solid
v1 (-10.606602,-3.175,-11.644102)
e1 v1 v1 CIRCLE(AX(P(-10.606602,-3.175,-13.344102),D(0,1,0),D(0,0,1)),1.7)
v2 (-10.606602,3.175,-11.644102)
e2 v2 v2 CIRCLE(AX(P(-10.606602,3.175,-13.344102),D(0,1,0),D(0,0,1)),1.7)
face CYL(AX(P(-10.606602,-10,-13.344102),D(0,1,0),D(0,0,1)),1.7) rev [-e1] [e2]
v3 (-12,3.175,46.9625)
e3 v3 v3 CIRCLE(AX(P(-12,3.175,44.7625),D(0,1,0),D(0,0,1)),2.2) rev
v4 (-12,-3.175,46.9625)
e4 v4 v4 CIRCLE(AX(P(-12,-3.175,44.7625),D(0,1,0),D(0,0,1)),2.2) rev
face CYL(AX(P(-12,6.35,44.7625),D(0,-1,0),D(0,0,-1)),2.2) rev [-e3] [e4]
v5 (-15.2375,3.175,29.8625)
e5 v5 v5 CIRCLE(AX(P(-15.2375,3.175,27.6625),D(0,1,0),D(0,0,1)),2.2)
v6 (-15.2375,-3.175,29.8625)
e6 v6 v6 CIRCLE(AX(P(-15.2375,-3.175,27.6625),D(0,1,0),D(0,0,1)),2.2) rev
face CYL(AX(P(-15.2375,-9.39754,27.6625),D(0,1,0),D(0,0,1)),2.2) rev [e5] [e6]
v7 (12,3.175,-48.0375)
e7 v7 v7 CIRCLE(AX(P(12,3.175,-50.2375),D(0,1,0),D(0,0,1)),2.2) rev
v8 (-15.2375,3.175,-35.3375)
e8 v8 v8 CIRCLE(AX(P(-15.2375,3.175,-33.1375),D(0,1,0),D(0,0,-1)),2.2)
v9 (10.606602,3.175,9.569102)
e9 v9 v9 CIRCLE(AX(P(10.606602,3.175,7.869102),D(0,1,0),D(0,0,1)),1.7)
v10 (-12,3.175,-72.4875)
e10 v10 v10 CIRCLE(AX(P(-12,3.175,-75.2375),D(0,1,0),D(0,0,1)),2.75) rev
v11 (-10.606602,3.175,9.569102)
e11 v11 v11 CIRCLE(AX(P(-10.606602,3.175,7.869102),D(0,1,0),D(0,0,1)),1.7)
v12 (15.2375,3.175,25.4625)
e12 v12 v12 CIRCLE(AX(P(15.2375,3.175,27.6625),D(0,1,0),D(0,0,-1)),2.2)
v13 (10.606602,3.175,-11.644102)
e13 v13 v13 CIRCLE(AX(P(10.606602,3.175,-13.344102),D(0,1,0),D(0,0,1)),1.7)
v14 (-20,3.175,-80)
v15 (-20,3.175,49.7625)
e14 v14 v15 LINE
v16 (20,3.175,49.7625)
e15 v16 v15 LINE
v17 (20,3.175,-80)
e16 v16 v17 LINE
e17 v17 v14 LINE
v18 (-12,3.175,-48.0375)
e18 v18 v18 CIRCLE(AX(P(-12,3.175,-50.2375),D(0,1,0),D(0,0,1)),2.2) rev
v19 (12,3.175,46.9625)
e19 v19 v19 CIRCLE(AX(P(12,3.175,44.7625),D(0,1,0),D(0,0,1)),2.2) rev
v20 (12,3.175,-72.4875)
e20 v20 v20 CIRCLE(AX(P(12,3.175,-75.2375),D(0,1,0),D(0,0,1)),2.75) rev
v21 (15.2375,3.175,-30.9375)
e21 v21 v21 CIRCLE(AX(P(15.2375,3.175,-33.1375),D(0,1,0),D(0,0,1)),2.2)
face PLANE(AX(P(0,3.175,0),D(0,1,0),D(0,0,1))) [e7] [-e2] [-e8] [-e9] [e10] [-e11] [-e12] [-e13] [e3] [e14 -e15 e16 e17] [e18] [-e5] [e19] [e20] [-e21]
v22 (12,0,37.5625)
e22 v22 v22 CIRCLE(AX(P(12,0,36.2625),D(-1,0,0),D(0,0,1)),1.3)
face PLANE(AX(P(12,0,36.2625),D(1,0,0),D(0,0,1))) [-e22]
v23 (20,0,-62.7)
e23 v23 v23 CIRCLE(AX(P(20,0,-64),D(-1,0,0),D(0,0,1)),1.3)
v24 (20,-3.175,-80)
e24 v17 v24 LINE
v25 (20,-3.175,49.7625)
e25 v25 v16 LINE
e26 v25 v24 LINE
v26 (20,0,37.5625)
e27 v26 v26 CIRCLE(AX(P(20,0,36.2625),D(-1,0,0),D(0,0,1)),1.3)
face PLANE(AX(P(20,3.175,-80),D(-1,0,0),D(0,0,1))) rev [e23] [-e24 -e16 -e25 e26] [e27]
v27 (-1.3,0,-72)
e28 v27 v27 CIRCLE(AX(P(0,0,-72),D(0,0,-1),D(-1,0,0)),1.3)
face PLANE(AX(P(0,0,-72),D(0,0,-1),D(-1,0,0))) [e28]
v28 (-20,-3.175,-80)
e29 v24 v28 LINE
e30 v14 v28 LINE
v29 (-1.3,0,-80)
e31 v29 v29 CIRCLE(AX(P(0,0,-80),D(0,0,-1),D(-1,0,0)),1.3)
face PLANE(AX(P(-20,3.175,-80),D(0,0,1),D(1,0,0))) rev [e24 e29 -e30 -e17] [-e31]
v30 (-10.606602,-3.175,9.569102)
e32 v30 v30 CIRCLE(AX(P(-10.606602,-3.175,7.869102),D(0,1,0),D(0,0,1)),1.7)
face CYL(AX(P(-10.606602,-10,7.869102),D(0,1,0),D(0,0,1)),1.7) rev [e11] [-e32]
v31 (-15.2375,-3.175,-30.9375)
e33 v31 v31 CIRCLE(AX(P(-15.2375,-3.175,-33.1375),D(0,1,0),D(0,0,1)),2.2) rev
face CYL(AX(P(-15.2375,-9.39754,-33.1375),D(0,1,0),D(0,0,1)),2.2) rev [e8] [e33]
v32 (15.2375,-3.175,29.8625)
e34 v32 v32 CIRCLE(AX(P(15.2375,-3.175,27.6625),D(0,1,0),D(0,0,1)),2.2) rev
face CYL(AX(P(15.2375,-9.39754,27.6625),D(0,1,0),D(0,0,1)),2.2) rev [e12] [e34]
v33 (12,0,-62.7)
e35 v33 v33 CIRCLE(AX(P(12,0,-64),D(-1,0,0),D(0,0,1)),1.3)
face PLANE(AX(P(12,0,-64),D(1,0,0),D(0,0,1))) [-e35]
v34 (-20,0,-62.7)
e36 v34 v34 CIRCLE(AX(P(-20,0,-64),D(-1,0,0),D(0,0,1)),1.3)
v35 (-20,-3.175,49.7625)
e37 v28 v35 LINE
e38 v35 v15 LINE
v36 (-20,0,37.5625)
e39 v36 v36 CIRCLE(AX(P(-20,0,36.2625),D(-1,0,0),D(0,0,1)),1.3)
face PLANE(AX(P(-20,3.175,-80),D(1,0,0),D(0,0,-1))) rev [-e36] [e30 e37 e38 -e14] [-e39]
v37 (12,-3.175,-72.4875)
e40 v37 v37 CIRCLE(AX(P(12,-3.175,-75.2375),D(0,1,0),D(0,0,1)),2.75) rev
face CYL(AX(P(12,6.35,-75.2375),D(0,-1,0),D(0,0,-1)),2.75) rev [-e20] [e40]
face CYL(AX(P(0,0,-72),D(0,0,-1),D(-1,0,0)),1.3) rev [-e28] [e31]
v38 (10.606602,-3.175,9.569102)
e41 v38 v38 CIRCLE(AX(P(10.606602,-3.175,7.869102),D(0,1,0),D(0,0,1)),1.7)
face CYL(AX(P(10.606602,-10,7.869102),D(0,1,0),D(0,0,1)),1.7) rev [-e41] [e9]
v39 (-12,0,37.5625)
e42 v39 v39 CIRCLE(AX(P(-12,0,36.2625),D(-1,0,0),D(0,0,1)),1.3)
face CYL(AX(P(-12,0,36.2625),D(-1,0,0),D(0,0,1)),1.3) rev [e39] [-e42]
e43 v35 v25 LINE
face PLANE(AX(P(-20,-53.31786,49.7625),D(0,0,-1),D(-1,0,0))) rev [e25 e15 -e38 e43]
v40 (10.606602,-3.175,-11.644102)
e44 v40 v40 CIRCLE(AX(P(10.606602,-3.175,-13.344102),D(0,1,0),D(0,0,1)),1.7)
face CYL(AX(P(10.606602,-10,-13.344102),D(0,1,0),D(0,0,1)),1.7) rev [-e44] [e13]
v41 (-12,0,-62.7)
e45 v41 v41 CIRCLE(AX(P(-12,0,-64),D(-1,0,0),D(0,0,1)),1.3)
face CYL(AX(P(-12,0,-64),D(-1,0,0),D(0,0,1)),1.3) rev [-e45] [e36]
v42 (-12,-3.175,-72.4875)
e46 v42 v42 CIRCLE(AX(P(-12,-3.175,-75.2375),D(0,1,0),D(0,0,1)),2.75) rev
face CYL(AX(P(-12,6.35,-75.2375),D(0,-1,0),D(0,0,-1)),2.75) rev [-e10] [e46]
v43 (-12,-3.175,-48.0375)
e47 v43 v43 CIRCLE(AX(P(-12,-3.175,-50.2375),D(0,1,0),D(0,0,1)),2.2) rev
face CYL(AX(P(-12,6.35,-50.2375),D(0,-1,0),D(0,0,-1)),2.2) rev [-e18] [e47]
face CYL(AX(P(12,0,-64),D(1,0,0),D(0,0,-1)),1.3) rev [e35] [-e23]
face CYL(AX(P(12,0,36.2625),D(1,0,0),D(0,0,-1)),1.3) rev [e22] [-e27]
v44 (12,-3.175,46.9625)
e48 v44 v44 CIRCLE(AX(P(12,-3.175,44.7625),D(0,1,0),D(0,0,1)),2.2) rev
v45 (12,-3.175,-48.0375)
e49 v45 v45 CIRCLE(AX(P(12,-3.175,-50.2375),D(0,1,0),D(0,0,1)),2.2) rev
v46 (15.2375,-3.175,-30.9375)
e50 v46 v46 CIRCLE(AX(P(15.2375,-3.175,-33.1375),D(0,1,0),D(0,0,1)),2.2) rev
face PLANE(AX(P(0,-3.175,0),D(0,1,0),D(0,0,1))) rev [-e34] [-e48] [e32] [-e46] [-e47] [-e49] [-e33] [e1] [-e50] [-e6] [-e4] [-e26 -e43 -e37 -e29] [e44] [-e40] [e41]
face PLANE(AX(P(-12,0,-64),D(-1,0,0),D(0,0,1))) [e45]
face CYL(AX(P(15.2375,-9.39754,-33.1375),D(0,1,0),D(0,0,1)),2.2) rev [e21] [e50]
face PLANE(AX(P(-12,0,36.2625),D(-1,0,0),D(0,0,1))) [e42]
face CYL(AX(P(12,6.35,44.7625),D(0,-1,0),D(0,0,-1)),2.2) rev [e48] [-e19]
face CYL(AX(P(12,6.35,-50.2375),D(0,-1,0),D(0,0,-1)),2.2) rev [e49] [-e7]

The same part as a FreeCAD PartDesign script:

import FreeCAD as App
import Part
import Sketcher

V = App.Vector

doc = App.newDocument("Part")
params = doc.addObject("Spreadsheet::Sheet", "Params")
for row, (alias, value) in enumerate([
    ("sketch1_width", "40 mm"),
    ("sketch1_height", "160 mm"),
    ("pad1_length", "6.35 mm"),
    ("sketch2_diameter", "5.5 mm"),
    ("sketch2_diameter2", "4.4 mm"),
    ("sketch3_diameter", "2.6 mm"),
    ("pocket2_length", "8 mm"),
    ("sketch4_diameter", "4.4 mm"),
    ("pocket3_length", "6.35 mm"),
    ("sketch5_diameter", "3.4 mm"),
    ("sketch6_width", "40 mm"),
    ("pocket5_length", "6.35 mm"),
    ("sketch7_diameter", "2.6 mm"),
    ("pocket6_length", "8 mm"),
], start=1):
    params.set(f"A{row}", alias)
    params.set(f"B{row}", "=" + value)
    params.setAlias(f"B{row}", alias)

body = doc.addObject("PartDesign::Body", "Body")

# Sketch on XZ plane
sketch1 = body.newObject("Sketcher::SketchObject", "Sketch")
sketch1.AttachmentSupport = (doc.getObject("XZ_Plane"), [""])
sketch1.MapMode = "FlatFace"
sketch1.addGeometry([
    Part.LineSegment(V(-20, -80, 0), V(-20, 80, 0)),
    Part.LineSegment(V(-20, 80, 0), V(20, 80, 0)),
    Part.LineSegment(V(20, 80, 0), V(20, -80, 0)),
    Part.LineSegment(V(20, -80, 0), V(-20, -80, 0)),
], False)
sketch1.addConstraint([
    Sketcher.Constraint("Coincident", 0, 2, 1, 1),
    Sketcher.Constraint("Coincident", 1, 2, 2, 1),
    Sketcher.Constraint("Coincident", 2, 2, 3, 1),
    Sketcher.Constraint("Coincident", 3, 2, 0, 1),
    Sketcher.Constraint("Vertical", 0),
    Sketcher.Constraint("Horizontal", 1),
    Sketcher.Constraint("Vertical", 2),
    Sketcher.Constraint("Horizontal", 3),
    Sketcher.Constraint("Symmetric", 0, 2, 2, 2, -1, 1),
    Sketcher.Constraint("DistanceX", 1, 1, 1, 2, 40.0),
    Sketcher.Constraint("DistanceY", 0, 1, 0, 2, 160.0),
])
sketch1.setExpression("Constraints[9]", "Params.sketch1_width")
sketch1.setExpression("Constraints[10]", "Params.sketch1_height")
pad1 = body.newObject("PartDesign::Pad", "Pad")
pad1.Profile = sketch1
pad1.setExpression("Length", "Params.pad1_length")
pad1.Midplane = True

# Sketch on XZ plane
sketch2 = body.newObject("Sketcher::SketchObject", "Sketch001")
sketch2.AttachmentSupport = (doc.getObject("XZ_Plane"), [""])
sketch2.MapMode = "FlatFace"
sketch2.addGeometry([
    Part.Circle(V(12, -75.2375, 0), V(0, 0, 1), 2.75),  # 0
    Part.Circle(V(12, -50.2375, 0), V(0, 0, 1), 2.2),  # 1
    Part.Circle(V(-12, -50.2375, 0), V(0, 0, 1), 2.2),  # 2
    Part.Circle(V(-12, -75.2375, 0), V(0, 0, 1), 2.75),  # 3
    Part.Circle(V(-12, 44.7625, 0), V(0, 0, 1), 2.2),  # 4
    Part.Circle(V(12, 44.7625, 0), V(0, 0, 1), 2.2),  # 5
], False)
sketch2.addConstraint([
    Sketcher.Constraint("Equal", 1, 2),
    Sketcher.Constraint("Equal", 0, 3),
    Sketcher.Constraint("Equal", 2, 4),
    Sketcher.Constraint("Equal", 4, 5),
    Sketcher.Constraint("Symmetric", 1, 3, 2, 3, -2),
    Sketcher.Constraint("Symmetric", 0, 3, 3, 3, -2),
    Sketcher.Constraint("Symmetric", 4, 3, 5, 3, -2),
    Sketcher.Constraint("Vertical", 0, 3, 1, 3),
    Sketcher.Constraint("Vertical", 3, 3, 4, 3),
    Sketcher.Constraint("Diameter", 0, 5.5),
    Sketcher.Constraint("Diameter", 1, 4.4),
    Sketcher.Constraint("DistanceX", -1, 1, 0, 3, 12.0),
    Sketcher.Constraint("DistanceY", 0, 3, 1, 3, 25.0),
    Sketcher.Constraint("DistanceY", 2, 3, 4, 3, 95.0),
    Sketcher.Constraint("DistanceY", 0, 3, -1, 1, 75.2375),
])
sketch2.setExpression("Constraints[9]", "Params.sketch2_diameter")
sketch2.setExpression("Constraints[10]", "Params.sketch2_diameter2")
pocket1 = body.newObject("PartDesign::Pocket", "Pocket")
pocket1.Profile = sketch2
pocket1.Type = "ThroughAll"
pocket1.Midplane = True

# Sketch on XY plane
sketch3 = body.newObject("Sketcher::SketchObject", "Sketch002")
sketch3.AttachmentSupport = (doc.getObject("XY_Plane"), [""])
sketch3.MapMode = "FlatFace"
sketch3.AttachmentOffset = App.Placement(V(0, 0, -80), App.Rotation())
sketch3.addGeometry(Part.Circle(V(0, 0, 0), V(0, 0, 1), 1.3), False)
sketch3.addConstraint([
    Sketcher.Constraint("Coincident", 0, 3, -1, 1),
    Sketcher.Constraint("Diameter", 0, 2.6),
])
sketch3.setExpression("Constraints[1]", "Params.sketch3_diameter")
pocket2 = body.newObject("PartDesign::Pocket", "Pocket001")
pocket2.Profile = sketch3
pocket2.setExpression("Length", "Params.pocket2_length")
pocket2.Reversed = True

# Sketch on XZ plane
sketch4 = body.newObject("Sketcher::SketchObject", "Sketch003")
sketch4.AttachmentSupport = (doc.getObject("XZ_Plane"), [""])
sketch4.MapMode = "FlatFace"
sketch4.AttachmentOffset = App.Placement(V(0, 0, -3.175), App.Rotation())
sketch4.addGeometry([
    Part.Circle(V(-15.2375, 27.6625, 0), V(0, 0, 1), 2.2),
    Part.Circle(V(15.2375, 27.6625, 0), V(0, 0, 1), 2.2),
    Part.Circle(V(15.2375, -33.1375, 0), V(0, 0, 1), 2.2),
    Part.Circle(V(-15.2375, -33.1375, 0), V(0, 0, 1), 2.2),
], False)
sketch4.addConstraint([
    Sketcher.Constraint("Equal", 0, 1),
    Sketcher.Constraint("Equal", 1, 2),
    Sketcher.Constraint("Equal", 2, 3),
    Sketcher.Constraint("Symmetric", 0, 3, 1, 3, -2),
    Sketcher.Constraint("Symmetric", 2, 3, 3, 3, -2),
    Sketcher.Constraint("Vertical", 1, 3, 2, 3),
    Sketcher.Constraint("Diameter", 0, 4.4),
    Sketcher.Constraint("DistanceY", 2, 3, 1, 3, 60.8),
    Sketcher.Constraint("DistanceX", 0, 3, 1, 3, 30.475),
    Sketcher.Constraint("DistanceY", -1, 1, 0, 3, 27.6625),
])
sketch4.setExpression("Constraints[6]", "Params.sketch4_diameter")
pocket3 = body.newObject("PartDesign::Pocket", "Pocket002")
pocket3.Profile = sketch4
pocket3.setExpression("Length", "Params.pocket3_length")
pocket3.Reversed = True

# Sketch on XZ plane
sketch5 = body.newObject("Sketcher::SketchObject", "Sketch004")
sketch5.AttachmentSupport = (doc.getObject("XZ_Plane"), [""])
sketch5.MapMode = "FlatFace"
sketch5.addGeometry([
    Part.Circle(V(-10.606602, -13.344102, 0), V(0, 0, 1), 1.7),
    Part.Circle(V(10.606602, -13.344102, 0), V(0, 0, 1), 1.7),
    Part.Circle(V(10.606602, 7.869102, 0), V(0, 0, 1), 1.7),
    Part.Circle(V(-10.606602, 7.869102, 0), V(0, 0, 1), 1.7),
], False)
sketch5.addConstraint([
    Sketcher.Constraint("Equal", 0, 1),
    Sketcher.Constraint("Equal", 1, 2),
    Sketcher.Constraint("Equal", 2, 3),
    Sketcher.Constraint("Symmetric", 0, 3, 1, 3, -2),
    Sketcher.Constraint("Symmetric", 2, 3, 3, 3, -2),
    Sketcher.Constraint("Vertical", 1, 3, 2, 3),
    Sketcher.Constraint("Diameter", 0, 3.4),
    Sketcher.Constraint("DistanceX", 0, 3, -1, 1, 10.606602),
    Sketcher.Constraint("DistanceY", 0, 3, -1, 1, 13.344102),
    Sketcher.Constraint("DistanceY", -1, 1, 2, 3, 7.869102),
])
sketch5.setExpression("Constraints[6]", "Params.sketch5_diameter")
pocket4 = body.newObject("PartDesign::Pocket", "Pocket003")
pocket4.Profile = sketch5
pocket4.Type = "ThroughAll"
pocket4.Midplane = True

# Sketch on XZ plane
sketch6 = body.newObject("Sketcher::SketchObject", "Sketch005")
sketch6.AttachmentSupport = (doc.getObject("XZ_Plane"), [""])
sketch6.MapMode = "FlatFace"
sketch6.AttachmentOffset = App.Placement(V(0, 0, -3.175), App.Rotation())
sketch6.addGeometry([
    Part.LineSegment(V(-20, 49.7625, 0), V(-20, 80, 0)),
    Part.LineSegment(V(-20, 80, 0), V(20, 80, 0)),
    Part.LineSegment(V(20, 80, 0), V(20, 49.7625, 0)),
    Part.LineSegment(V(20, 49.7625, 0), V(-20, 49.7625, 0)),
], False)
sketch6.addConstraint([
    Sketcher.Constraint("Coincident", 0, 2, 1, 1),
    Sketcher.Constraint("Coincident", 1, 2, 2, 1),
    Sketcher.Constraint("Coincident", 2, 2, 3, 1),
    Sketcher.Constraint("Coincident", 3, 2, 0, 1),
    Sketcher.Constraint("Vertical", 0),
    Sketcher.Constraint("Horizontal", 1),
    Sketcher.Constraint("Vertical", 2),
    Sketcher.Constraint("Horizontal", 3),
    Sketcher.Constraint("DistanceX", 1, 1, 1, 2, 40.0),
    Sketcher.Constraint("DistanceX", 0, 2, -1, 1, 20.0),
    Sketcher.Constraint("DistanceY", -1, 1, 0, 2, 80.0),
    Sketcher.Constraint("DistanceY", 0, 1, 0, 2, 30.2375),
])
sketch6.setExpression("Constraints[8]", "Params.sketch6_width")
pocket5 = body.newObject("PartDesign::Pocket", "Pocket004")
pocket5.Profile = sketch6
pocket5.setExpression("Length", "Params.pocket5_length")
pocket5.Reversed = True

# Sketch on YZ plane
sketch7 = body.newObject("Sketcher::SketchObject", "Sketch006")
sketch7.AttachmentSupport = (doc.getObject("YZ_Plane"), [""])
sketch7.MapMode = "FlatFace"
sketch7.AttachmentOffset = App.Placement(V(0, 0, -20), App.Rotation())
sketch7.addGeometry([
    Part.Circle(V(0, 36.2625, 0), V(0, 0, 1), 1.3),
    Part.Circle(V(0, -64, 0), V(0, 0, 1), 1.3),
], False)
sketch7.addConstraint([
    Sketcher.Constraint("Equal", 0, 1),
    Sketcher.Constraint("PointOnObject", 0, 3, -2),
    Sketcher.Constraint("PointOnObject", 1, 3, -2),
    Sketcher.Constraint("Diameter", 0, 2.6),
    Sketcher.Constraint("DistanceY", 1, 3, -1, 1, 64.0),
    Sketcher.Constraint("DistanceY", -1, 1, 0, 3, 36.2625),
])
sketch7.setExpression("Constraints[3]", "Params.sketch7_diameter")
pocket6 = body.newObject("PartDesign::Pocket", "Pocket005")
pocket6.Profile = sketch7
pocket6.setExpression("Length", "Params.pocket6_length")
pocket6.Reversed = True
doc.recompute()

mirrored = body.newObject("PartDesign::Mirrored", "Mirrored")
mirrored.Originals = [pocket6]
mirrored.MirrorPlane = (doc.getObject("YZ_Plane"), [""])
body.Tip = mirrored

doc.recompute()
